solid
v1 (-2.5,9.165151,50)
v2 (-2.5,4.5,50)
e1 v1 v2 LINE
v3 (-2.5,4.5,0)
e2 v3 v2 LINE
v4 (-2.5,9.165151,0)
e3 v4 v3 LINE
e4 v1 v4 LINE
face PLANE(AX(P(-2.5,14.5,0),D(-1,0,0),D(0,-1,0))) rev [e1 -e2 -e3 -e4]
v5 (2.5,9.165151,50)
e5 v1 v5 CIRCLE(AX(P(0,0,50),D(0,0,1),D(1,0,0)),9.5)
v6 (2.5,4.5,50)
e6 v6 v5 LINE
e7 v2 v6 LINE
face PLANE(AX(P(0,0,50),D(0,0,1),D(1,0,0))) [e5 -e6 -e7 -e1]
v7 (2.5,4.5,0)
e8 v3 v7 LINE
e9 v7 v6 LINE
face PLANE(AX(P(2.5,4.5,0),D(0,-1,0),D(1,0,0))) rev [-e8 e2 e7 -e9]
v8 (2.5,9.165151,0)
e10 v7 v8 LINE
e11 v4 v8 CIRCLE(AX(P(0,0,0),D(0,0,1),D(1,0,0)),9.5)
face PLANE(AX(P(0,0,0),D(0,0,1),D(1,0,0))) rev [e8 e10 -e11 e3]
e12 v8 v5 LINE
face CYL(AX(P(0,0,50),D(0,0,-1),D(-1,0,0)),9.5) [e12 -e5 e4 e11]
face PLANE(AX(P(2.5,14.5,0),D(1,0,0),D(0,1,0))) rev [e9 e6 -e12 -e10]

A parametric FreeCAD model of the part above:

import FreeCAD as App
import Part
import Sketcher
from FreeCAD import Vector


def add_polygon(sketch, points):
    """Adds a closed chain of lines whose ends are joined by coincident constraints."""
    first, n = sketch.GeometryCount, len(points)
    for a, b in zip(points, points[1:] + points[:1]):
        sketch.addGeometry(Part.LineSegment(App.Vector(*a, 0), App.Vector(*b, 0)), False)
    for i in range(n):
        sketch.addConstraint(Sketcher.Constraint("Coincident", first + i, 2, first + (i + 1) % n, 1))

doc = App.newDocument("Part")
body = doc.addObject("PartDesign::Body", "Body")

sketch1 = body.newObject("Sketcher::SketchObject", "Sketch")
sketch1.AttachmentSupport = (doc.getObject("XY_Plane"), [""])
sketch1.MapMode = "FlatFace"
sketch1.addGeometry(Part.Circle(Vector(0, 0, 0), Vector(0, 0, 1), 10), False)
sketch1.addConstraint(Sketcher.Constraint("Coincident", 0, 3, -1, 1))
sketch1.addConstraint(Sketcher.Constraint("Diameter", 0, 19.0))
pad1 = body.newObject("PartDesign::Pad", "Pad")
pad1.Profile = sketch1
pad1.Length = 50

sketch2 = body.newObject("Sketcher::SketchObject", "Sketch001")
sketch2.AttachmentSupport = (doc.getObject("XY_Plane"), [""])
sketch2.MapMode = "FlatFace"
sketch2.AttachmentOffset = App.Placement(Vector(0, 0, 50), App.Rotation())
add_polygon(sketch2, [(-2, 14), (-2, 4), (2, 4), (2, 14)])
sketch2.addConstraint(Sketcher.Constraint("Vertical", 0))
sketch2.addConstraint(Sketcher.Constraint("Horizontal", 1))
sketch2.addConstraint(Sketcher.Constraint("Vertical", 2))
sketch2.addConstraint(Sketcher.Constraint("Horizontal", 3))
sketch2.addConstraint(Sketcher.Constraint("DistanceX", 1, 1, 1, 2, 5.0))
sketch2.addConstraint(Sketcher.Constraint("DistanceY", 0, 2, 0, 1, 10.0))
sketch2.addConstraint(Sketcher.Constraint("DistanceX", 0, 2, -1, 1, 2.5))
sketch2.addConstraint(Sketcher.Constraint("DistanceY", -1, 1, 0, 2, 4.5))
pocket1 = body.newObject("PartDesign::Pocket", "Pocket")
pocket1.Profile = sketch2
pocket1.Type = "ThroughAll"

doc.recompute()
